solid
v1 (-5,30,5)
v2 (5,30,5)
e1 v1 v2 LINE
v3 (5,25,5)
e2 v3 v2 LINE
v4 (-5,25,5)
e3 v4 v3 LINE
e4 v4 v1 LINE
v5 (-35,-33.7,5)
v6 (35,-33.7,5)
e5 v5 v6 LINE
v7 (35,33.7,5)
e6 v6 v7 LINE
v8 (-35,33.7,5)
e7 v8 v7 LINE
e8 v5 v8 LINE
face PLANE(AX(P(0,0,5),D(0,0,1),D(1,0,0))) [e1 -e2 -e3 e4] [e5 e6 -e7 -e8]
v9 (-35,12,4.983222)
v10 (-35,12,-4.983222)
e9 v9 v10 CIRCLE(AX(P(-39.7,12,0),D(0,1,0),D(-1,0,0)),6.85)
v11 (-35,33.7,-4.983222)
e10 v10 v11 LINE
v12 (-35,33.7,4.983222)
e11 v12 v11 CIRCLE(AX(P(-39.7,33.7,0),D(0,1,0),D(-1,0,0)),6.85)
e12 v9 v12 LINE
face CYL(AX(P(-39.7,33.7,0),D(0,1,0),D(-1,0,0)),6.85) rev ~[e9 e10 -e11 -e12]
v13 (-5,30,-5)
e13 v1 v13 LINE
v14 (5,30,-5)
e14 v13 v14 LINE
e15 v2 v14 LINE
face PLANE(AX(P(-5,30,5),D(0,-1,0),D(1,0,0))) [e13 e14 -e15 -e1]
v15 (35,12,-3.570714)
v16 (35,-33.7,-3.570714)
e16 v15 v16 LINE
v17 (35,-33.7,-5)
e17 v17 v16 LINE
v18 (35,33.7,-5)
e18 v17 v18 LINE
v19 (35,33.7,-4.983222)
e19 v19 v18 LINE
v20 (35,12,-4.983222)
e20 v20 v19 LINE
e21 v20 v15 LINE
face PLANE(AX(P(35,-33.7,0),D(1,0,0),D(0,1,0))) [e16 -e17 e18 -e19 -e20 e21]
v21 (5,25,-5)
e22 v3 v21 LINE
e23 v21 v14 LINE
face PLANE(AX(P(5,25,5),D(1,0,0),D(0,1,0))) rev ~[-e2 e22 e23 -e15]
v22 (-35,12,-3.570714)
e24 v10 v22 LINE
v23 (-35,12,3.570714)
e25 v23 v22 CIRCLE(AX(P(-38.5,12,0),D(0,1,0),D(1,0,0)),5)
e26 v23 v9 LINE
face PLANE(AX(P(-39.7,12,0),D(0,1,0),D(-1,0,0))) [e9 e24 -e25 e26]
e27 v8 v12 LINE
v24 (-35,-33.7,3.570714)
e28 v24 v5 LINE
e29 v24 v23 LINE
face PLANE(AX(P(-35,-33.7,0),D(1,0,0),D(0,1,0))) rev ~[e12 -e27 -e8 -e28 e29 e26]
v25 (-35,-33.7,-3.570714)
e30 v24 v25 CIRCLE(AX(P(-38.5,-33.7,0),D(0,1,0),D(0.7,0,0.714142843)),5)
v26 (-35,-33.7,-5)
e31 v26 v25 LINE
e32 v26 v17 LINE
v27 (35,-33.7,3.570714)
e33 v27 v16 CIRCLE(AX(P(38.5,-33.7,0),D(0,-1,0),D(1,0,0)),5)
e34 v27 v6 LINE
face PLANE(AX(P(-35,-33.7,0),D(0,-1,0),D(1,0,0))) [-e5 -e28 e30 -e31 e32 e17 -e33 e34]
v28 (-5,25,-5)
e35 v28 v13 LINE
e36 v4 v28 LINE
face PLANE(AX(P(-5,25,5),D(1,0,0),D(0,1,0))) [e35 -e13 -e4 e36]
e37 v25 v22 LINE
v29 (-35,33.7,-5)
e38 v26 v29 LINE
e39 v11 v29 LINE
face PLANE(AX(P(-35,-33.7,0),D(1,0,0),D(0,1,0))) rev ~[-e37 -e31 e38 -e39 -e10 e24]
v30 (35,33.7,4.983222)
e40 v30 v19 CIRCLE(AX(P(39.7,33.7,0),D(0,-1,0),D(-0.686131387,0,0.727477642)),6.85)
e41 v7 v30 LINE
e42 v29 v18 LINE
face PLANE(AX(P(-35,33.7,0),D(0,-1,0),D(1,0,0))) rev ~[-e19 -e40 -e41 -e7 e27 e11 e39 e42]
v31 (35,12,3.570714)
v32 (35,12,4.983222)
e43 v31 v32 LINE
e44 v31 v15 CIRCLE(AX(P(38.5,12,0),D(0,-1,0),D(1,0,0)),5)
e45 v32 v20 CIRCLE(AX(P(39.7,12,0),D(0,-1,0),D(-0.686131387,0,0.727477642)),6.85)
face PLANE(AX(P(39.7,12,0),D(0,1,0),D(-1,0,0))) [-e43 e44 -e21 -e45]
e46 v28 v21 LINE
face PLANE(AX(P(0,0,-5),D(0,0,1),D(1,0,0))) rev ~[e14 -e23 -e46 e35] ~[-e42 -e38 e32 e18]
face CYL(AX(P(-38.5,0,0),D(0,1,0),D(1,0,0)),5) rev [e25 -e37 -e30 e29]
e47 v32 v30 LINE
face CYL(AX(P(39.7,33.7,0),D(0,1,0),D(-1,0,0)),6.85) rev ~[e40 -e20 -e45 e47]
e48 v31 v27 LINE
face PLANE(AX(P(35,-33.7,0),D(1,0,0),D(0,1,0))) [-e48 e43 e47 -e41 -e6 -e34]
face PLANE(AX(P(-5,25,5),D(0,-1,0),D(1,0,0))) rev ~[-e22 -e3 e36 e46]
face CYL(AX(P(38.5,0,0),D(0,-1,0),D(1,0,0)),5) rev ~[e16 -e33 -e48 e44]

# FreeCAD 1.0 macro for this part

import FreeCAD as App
import Part
import Sketcher

V = App.Vector

doc = App.newDocument("Part")
body = doc.addObject("PartDesign::Body", "Body")
body.AllowCompound = True

# Sketch on XZ plane
sketch1 = body.newObject("Sketcher::SketchObject", "Sketch")
sketch1.AttachmentSupport = (doc.getObject("XZ_Plane"), [""])
sketch1.MapMode = "FlatFace"
sketch1.addGeometry(Part.Circle(V(-38, 0, 0), V(0, 0, 1), 5), False)
sketch1.addGeometry(Part.Circle(V(38, 0, 0), V(0, 0, 1), 5), False)
sketch1.addConstraint(Sketcher.Constraint("Equal", 0, 1))
sketch1.addConstraint(Sketcher.Constraint("Symmetric", 0, 3, 1, 3, -1, 1))
sketch1.addConstraint(Sketcher.Constraint("PointOnObject", 0, 3, -1))
sketch1.addConstraint(Sketcher.Constraint("Diameter", 0, 10.0))
sketch1.addConstraint(Sketcher.Constraint("DistanceX", 0, 3, 1, 3, 77.0))
pad1 = body.newObject("PartDesign::Pad", "Pad")
pad1.Profile = sketch1
pad1.Length = 70
pad1.Midplane = True
body2 = doc.addObject("PartDesign::Body", "Body001")

# Sketch on XY plane
sketch2 = body2.newObject("Sketcher::SketchObject", "Sketch001")
sketch2.AttachmentSupport = (doc.getObject("XY_Plane001"), [""])
sketch2.MapMode = "FlatFace"
sketch2.addGeometry(Part.LineSegment(V(-35, 34, 0), V(-35, -34, 0)), False)
sketch2.addGeometry(Part.LineSegment(V(-35, -34, 0), V(35, -34, 0)), False)
sketch2.addGeometry(Part.LineSegment(V(35, -34, 0), V(35, 34, 0)), False)
sketch2.addGeometry(Part.LineSegment(V(35, 34, 0), V(-35, 34, 0)), False)
sketch2.addConstraint(Sketcher.Constraint("Coincident", 0, 2, 1, 1))
sketch2.addConstraint(Sketcher.Constraint("Coincident", 1, 2, 2, 1))
sketch2.addConstraint(Sketcher.Constraint("Coincident", 2, 2, 3, 1))
sketch2.addConstraint(Sketcher.Constraint("Coincident", 3, 2, 0, 1))
sketch2.addConstraint(Sketcher.Constraint("Vertical", 0))
sketch2.addConstraint(Sketcher.Constraint("Horizontal", 1))
sketch2.addConstraint(Sketcher.Constraint("Vertical", 2))
sketch2.addConstraint(Sketcher.Constraint("Horizontal", 3))
sketch2.addConstraint(Sketcher.Constraint("Symmetric", 0, 2, 2, 2, -1, 1))
sketch2.addConstraint(Sketcher.Constraint("DistanceX", 1, 1, 1, 2, 70.0))
sketch2.addConstraint(Sketcher.Constraint("DistanceY", 0, 2, 0, 1, 67.4))
pad2 = body2.newObject("PartDesign::Pad", "Pad001")
pad2.Profile = sketch2
pad2.Length = 10
pad2.Midplane = True
doc.recompute()

boolean = body2.newObject("PartDesign::Boolean", "Boolean")
boolean.Type = "Cut"
boolean.addObjects([body])

# Sketch on XY plane
sketch3 = body2.newObject("Sketcher::SketchObject", "Sketch002")
sketch3.AttachmentSupport = (doc.getObject("XY_Plane001"), [""])
sketch3.MapMode = "FlatFace"
sketch3.AttachmentOffset = App.Placement(V(0, 0, 5), App.Rotation())
sketch3.addGeometry(Part.LineSegment(V(-5, 30, 0), V(-5, 25, 0)), False)
sketch3.addGeometry(Part.LineSegment(V(-5, 25, 0), V(5, 25, 0)), False)
sketch3.addGeometry(Part.LineSegment(V(5, 25, 0), V(5, 30, 0)), False)
sketch3.addGeometry(Part.LineSegment(V(5, 30, 0), V(-5, 30, 0)), False)
sketch3.addConstraint(Sketcher.Constraint("Coincident", 0, 2, 1, 1))
sketch3.addConstraint(Sketcher.Constraint("Coincident", 1, 2, 2, 1))
sketch3.addConstraint(Sketcher.Constraint("Coincident", 2, 2, 3, 1))
sketch3.addConstraint(Sketcher.Constraint("Coincident", 3, 2, 0, 1))
sketch3.addConstraint(Sketcher.Constraint("Vertical", 0))
sketch3.addConstraint(Sketcher.Constraint("Horizontal", 1))
sketch3.addConstraint(Sketcher.Constraint("Vertical", 2))
sketch3.addConstraint(Sketcher.Constraint("Horizontal", 3))
sketch3.addConstraint(Sketcher.Constraint("DistanceX", 1, 1, 1, 2, 10.0))
sketch3.addConstraint(Sketcher.Constraint("DistanceY", 0, 2, 0, 1, 5.0))
sketch3.addConstraint(Sketcher.Constraint("DistanceX", 0, 2, -1, 1, 5.0))
sketch3.addConstraint(Sketcher.Constraint("DistanceY", -1, 1, 0, 2, 25.0))
pocket1 = body2.newObject("PartDesign::Pocket", "Pocket")
pocket1.Profile = sketch3
pocket1.Type = "ThroughAll"

# Sketch on XZ plane
sketch4 = body2.newObject("Sketcher::SketchObject", "Sketch003")
sketch4.AttachmentSupport = (doc.getObject("XZ_Plane001"), [""])
sketch4.MapMode = "FlatFace"
sketch4.AttachmentOffset = App.Placement(V(0, 0, -33.7), App.Rotation())
sketch4.addGeometry(Part.Circle(V(40, 0, 0), V(0, 0, 1), 7), False)
sketch4.addGeometry(Part.Circle(V(-40, 0, 0), V(0, 0, 1), 7), False)
sketch4.addConstraint(Sketcher.Constraint("Equal", 0, 1))
sketch4.addConstraint(Sketcher.Constraint("Symmetric", 0, 3, 1, 3, -1, 1))
sketch4.addConstraint(Sketcher.Constraint("PointOnObject", 0, 3, -1))
sketch4.addConstraint(Sketcher.Constraint("Diameter", 0, 13.7))
sketch4.addConstraint(Sketcher.Constraint("DistanceX", -1, 1, 0, 3, 39.7))
pocket2 = body2.newObject("PartDesign::Pocket", "Pocket001")
pocket2.Profile = sketch4
pocket2.Length = 21.7
pocket2.Reversed = True

doc.recompute()
